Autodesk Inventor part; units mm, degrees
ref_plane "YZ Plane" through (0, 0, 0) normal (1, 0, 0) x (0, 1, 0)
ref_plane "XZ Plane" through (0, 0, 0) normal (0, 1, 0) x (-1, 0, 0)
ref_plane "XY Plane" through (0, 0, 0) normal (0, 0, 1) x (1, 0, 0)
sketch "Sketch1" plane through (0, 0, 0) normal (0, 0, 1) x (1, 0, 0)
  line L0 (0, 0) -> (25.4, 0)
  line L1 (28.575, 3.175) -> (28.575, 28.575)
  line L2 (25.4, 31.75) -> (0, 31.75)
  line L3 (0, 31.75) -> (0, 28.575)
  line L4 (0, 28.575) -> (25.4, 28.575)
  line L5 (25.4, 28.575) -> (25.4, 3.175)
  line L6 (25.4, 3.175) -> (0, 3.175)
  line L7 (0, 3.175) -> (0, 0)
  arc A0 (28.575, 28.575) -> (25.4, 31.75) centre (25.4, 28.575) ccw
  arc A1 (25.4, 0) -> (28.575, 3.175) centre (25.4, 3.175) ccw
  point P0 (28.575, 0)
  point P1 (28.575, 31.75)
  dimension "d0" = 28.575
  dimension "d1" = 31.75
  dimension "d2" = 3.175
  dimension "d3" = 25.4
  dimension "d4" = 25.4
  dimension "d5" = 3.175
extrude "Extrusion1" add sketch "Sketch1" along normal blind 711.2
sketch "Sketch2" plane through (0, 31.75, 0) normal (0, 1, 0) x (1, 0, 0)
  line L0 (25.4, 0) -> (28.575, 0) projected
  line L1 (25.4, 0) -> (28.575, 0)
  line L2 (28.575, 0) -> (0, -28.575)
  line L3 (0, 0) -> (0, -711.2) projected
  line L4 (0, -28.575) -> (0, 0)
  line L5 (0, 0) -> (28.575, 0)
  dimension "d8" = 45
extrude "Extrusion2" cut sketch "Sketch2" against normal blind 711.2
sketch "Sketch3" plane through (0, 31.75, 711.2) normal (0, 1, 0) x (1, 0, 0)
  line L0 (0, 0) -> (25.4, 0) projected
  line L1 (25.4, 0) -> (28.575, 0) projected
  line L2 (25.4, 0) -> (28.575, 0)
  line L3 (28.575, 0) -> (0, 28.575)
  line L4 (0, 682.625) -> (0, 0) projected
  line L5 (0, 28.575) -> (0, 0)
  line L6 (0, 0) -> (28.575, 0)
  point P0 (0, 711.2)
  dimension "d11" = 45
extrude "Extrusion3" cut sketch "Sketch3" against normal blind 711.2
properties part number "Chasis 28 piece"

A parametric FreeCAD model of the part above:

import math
import FreeCAD as App
import Part
import Sketcher
Q = App.Units.Quantity

doc = App.newDocument("Part")
params = doc.addObject("Spreadsheet::Sheet", "Params")
for row, (alias, value) in enumerate([
    ("sketch1_width", "1 in"),
    ("sketch1_radius", "0.125 in"),
    ("pad1_length", "28 in"),
    ("sketch2_width", "1.125 in"),
    ("pocket1_length", "28 in"),
    ("sketch3_width", "1.125 in"),
    ("pocket2_length", "28 in"),
], start=1):
    params.set(f"A{row}", alias)
    params.set(f"B{row}", "=" + value)
    params.setAlias(f"B{row}", alias)

body = doc.addObject("PartDesign::Body", "Body")

# Sketch on XY plane
sketch1 = body.newObject("Sketcher::SketchObject", "Sketch")
sketch1.AttachmentSupport = (doc.getObject("XY_Plane"), [""])
sketch1.MapMode = "FlatFace"
sketch1.addGeometry([
    Part.LineSegment(App.Vector(0, 3.2, 0), App.Vector(0, 0, 0)),  # 0
    Part.LineSegment(App.Vector(0, 0, 0), App.Vector(25.4, 0, 0)),  # 1
    Part.ArcOfCircle(Part.Circle(App.Vector(25.4, 3.2, 0), App.Vector(0, 0, 1), 3.2), math.radians(-90), math.radians(0)),  # 2
    Part.LineSegment(App.Vector(28.6, 3.2, 0), App.Vector(28.6, 28.6, 0)),  # 3
    Part.ArcOfCircle(Part.Circle(App.Vector(25.4, 28.6, 0), App.Vector(0, 0, 1), 3.2), math.radians(0), math.radians(90)),  # 4
    Part.LineSegment(App.Vector(25.4, 31.8, 0), App.Vector(0, 31.8, 0)),  # 5
    Part.LineSegment(App.Vector(0, 31.8, 0), App.Vector(0, 28.6, 0)),  # 6
    Part.LineSegment(App.Vector(0, 28.6, 0), App.Vector(25.4, 28.6, 0)),  # 7
    Part.LineSegment(App.Vector(25.4, 28.6, 0), App.Vector(25.4, 3.2, 0)),  # 8
    Part.LineSegment(App.Vector(25.4, 3.2, 0), App.Vector(0, 3.2, 0)),  # 9
], False)
sketch1.addConstraint([
    Sketcher.Constraint("Coincident", 0, 2, 1, 1),
    Sketcher.Constraint("Tangent", 1, 2, 2, 1),
    Sketcher.Constraint("Tangent", 2, 2, 3, 1),
    Sketcher.Constraint("Tangent", 3, 2, 4, 1),
    Sketcher.Constraint("Tangent", 4, 2, 5, 1),
    Sketcher.Constraint("Coincident", 5, 2, 6, 1),
    Sketcher.Constraint("Coincident", 6, 2, 7, 1),
    Sketcher.Constraint("Coincident", 7, 2, 8, 1),
    Sketcher.Constraint("Coincident", 8, 2, 9, 1),
    Sketcher.Constraint("Coincident", 9, 2, 0, 1),
    Sketcher.Constraint("Vertical", 0),
    Sketcher.Constraint("Horizontal", 1),
    Sketcher.Constraint("Vertical", 3),
    Sketcher.Constraint("Horizontal", 5),
    Sketcher.Constraint("Vertical", 6),
    Sketcher.Constraint("Horizontal", 7),
    Sketcher.Constraint("Vertical", 8),
    Sketcher.Constraint("Horizontal", 9),
    Sketcher.Constraint("Coincident", 0, 2, -1, 1),
    Sketcher.Constraint("Coincident", 7, 2, 4, 3),
    Sketcher.Constraint("Coincident", 8, 2, 2, 3),
    Sketcher.Constraint("PointOnObject", 5, 2, -2),
    Sketcher.Constraint("Equal", 9, 3),
    Sketcher.Constraint("DistanceX", 1, 1, 1, 2, Q("1 in")),
    Sketcher.Constraint("Radius", 2, Q("0.125 in")),
])
sketch1.setExpression("Constraints[23]", "Params.sketch1_width")
sketch1.setExpression("Constraints[24]", "Params.sketch1_radius")
pad1 = body.newObject("PartDesign::Pad", "Pad")
pad1.Profile = sketch1
pad1.setExpression("Length", "Params.pad1_length")

# Sketch on XZ plane
sketch2 = body.newObject("Sketcher::SketchObject", "Sketch001")
sketch2.AttachmentSupport = (doc.getObject("XZ_Plane"), [""])
sketch2.MapMode = "FlatFace"
sketch2.AttachmentOffset = App.Placement(App.Vector(0, 0, -1.25 * 25.4), App.Rotation())
sketch2.addGeometry([
    Part.LineSegment(App.Vector(29, 0, 0), App.Vector(0, 0, 0)),
    Part.LineSegment(App.Vector(0, 0, 0), App.Vector(0, 29, 0)),
    Part.LineSegment(App.Vector(0, 29, 0), App.Vector(29, 0, 0)),
], False)
sketch2.addConstraint([
    Sketcher.Constraint("Coincident", 0, 2, 1, 1),
    Sketcher.Constraint("Coincident", 1, 2, 2, 1),
    Sketcher.Constraint("Coincident", 2, 2, 0, 1),
    Sketcher.Constraint("Horizontal", 0),
    Sketcher.Constraint("Vertical", 1),
    Sketcher.Constraint("Coincident", 0, 2, -1, 1),
    Sketcher.Constraint("Equal", 0, 1),
    Sketcher.Constraint("DistanceX", 0, 2, 0, 1, Q("1.125 in")),
])
sketch2.setExpression("Constraints[7]", "Params.sketch2_width")
pocket1 = body.newObject("PartDesign::Pocket", "Pocket")
pocket1.Profile = sketch2
pocket1.setExpression("Length", "Params.pocket1_length")
pocket1.Reversed = True

# Sketch on XZ plane
sketch3 = body.newObject("Sketcher::SketchObject", "Sketch002")
sketch3.AttachmentSupport = (doc.getObject("XZ_Plane"), [""])
sketch3.MapMode = "FlatFace"
sketch3.AttachmentOffset = App.Placement(App.Vector(0, 0, -1.25 * 25.4), App.Rotation())
sketch3.addGeometry([
    Part.LineSegment(App.Vector(0, 683, 0), App.Vector(0, 711, 0)),
    Part.LineSegment(App.Vector(0, 711, 0), App.Vector(29, 711, 0)),
    Part.LineSegment(App.Vector(29, 711, 0), App.Vector(0, 683, 0)),
], False)
sketch3.addConstraint([
    Sketcher.Constraint("Coincident", 0, 2, 1, 1),
    Sketcher.Constraint("Coincident", 1, 2, 2, 1),
    Sketcher.Constraint("Coincident", 2, 2, 0, 1),
    Sketcher.Constraint("Vertical", 0),
    Sketcher.Constraint("Horizontal", 1),
    Sketcher.Constraint("PointOnObject", 0, 2, -2),
    Sketcher.Constraint("Equal", 1, 0),
    Sketcher.Constraint("DistanceY", -1, 1, 0, 2, Q("28 in")),
    Sketcher.Constraint("DistanceX", 1, 1, 1, 2, Q("1.125 in")),
])
sketch3.setExpression("Constraints[8]", "Params.sketch3_width")
pocket2 = body.newObject("PartDesign::Pocket", "Pocket001")
pocket2.Profile = sketch3
pocket2.setExpression("Length", "Params.pocket2_length")
pocket2.Reversed = True

doc.recompute()
